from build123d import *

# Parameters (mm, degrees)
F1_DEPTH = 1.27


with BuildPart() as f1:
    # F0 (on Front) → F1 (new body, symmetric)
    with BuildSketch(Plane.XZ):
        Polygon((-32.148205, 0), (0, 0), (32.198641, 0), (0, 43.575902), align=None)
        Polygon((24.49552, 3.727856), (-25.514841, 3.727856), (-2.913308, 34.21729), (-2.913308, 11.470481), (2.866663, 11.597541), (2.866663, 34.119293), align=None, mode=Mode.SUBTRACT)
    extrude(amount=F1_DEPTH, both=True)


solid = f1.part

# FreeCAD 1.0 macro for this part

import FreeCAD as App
import Part
import Sketcher
from FreeCAD import Vector

doc = App.newDocument("Part")
params = doc.addObject("Spreadsheet::Sheet", "Params")
for row, (alias, value) in enumerate([
    ("pad1_length", "0.1 in"),
], start=1):
    params.set(f"A{row}", alias)
    params.set(f"B{row}", "=" + value)
    params.setAlias(f"B{row}", alias)

body = doc.addObject("PartDesign::Body", "Body")

sketch1 = body.newObject("Sketcher::SketchObject", "Sketch")
sketch1.AttachmentSupport = (doc.getObject("XZ_Plane"), [""])
sketch1.MapMode = "FlatFace"
sketch1.addGeometry([
    Part.LineSegment(Vector(-32, 0, 0), Vector(32, 0, 0)),
    Part.LineSegment(Vector(32, 0, 0), Vector(0, 44, 0)),
    Part.LineSegment(Vector(0, 44, 0), Vector(-32, 0, 0)),
    Part.LineSegment(Vector(3, 34, 0), Vector(24, 4, 0)),
    Part.LineSegment(Vector(24, 4, 0), Vector(-26, 4, 0)),
    Part.LineSegment(Vector(-26, 4, 0), Vector(-3, 34, 0)),
    Part.LineSegment(Vector(-3, 34, 0), Vector(-3, 11, 0)),
    Part.LineSegment(Vector(-3, 11, 0), Vector(3, 12, 0)),
    Part.LineSegment(Vector(3, 12, 0), Vector(3, 34, 0)),
], False)
sketch1.addConstraint([
    Sketcher.Constraint("Coincident", 0, 2, 1, 1),
    Sketcher.Constraint("Coincident", 1, 2, 2, 1),
    Sketcher.Constraint("Coincident", 2, 2, 0, 1),
    Sketcher.Constraint("Coincident", 3, 2, 4, 1),
    Sketcher.Constraint("Coincident", 4, 2, 5, 1),
    Sketcher.Constraint("Coincident", 5, 2, 6, 1),
    Sketcher.Constraint("Coincident", 6, 2, 7, 1),
    Sketcher.Constraint("Coincident", 7, 2, 8, 1),
    Sketcher.Constraint("Coincident", 8, 2, 3, 1),
    Sketcher.Constraint("Horizontal", 0),
    Sketcher.Constraint("Horizontal", 4),
    Sketcher.Constraint("Vertical", 6),
    Sketcher.Constraint("Vertical", 8),
    Sketcher.Constraint("PointOnObject", 0, 2, -1),
    Sketcher.Constraint("PointOnObject", 1, 2, -2),
    Sketcher.Constraint("DistanceX", 4, 2, 4, 1, 50.010361),
    Sketcher.Constraint("DistanceY", 6, 2, 6, 1, 22.746809),
    Sketcher.Constraint("DistanceY", 8, 1, 8, 2, 22.521752),
    Sketcher.Constraint("Distance", 5, 37.953062),
    Sketcher.Constraint("DistanceX", 0, 1, 0, 2, 64.346846),
    Sketcher.Constraint("DistanceX", -1, 1, 0, 2, 32.198641),
    Sketcher.Constraint("DistanceX", -1, 1, 3, 2, 24.49552),
    Sketcher.Constraint("DistanceY", -1, 1, 5, 2, 34.21729),
    Sketcher.Constraint("DistanceY", -1, 1, 7, 2, 11.597541),
    Sketcher.Constraint("DistanceX", 5, 2, 3, 2, 27.408828),
    Sketcher.Constraint("DistanceY", 6, 2, 1, 2, 32.105421),
    Sketcher.Constraint("DistanceX", 6, 2, 7, 2, 5.779971),
])
pad1 = body.newObject("PartDesign::Pad", "Pad")
pad1.Profile = sketch1
pad1.setExpression("Length", "Params.pad1_length")
pad1.Midplane = True

doc.recompute()
